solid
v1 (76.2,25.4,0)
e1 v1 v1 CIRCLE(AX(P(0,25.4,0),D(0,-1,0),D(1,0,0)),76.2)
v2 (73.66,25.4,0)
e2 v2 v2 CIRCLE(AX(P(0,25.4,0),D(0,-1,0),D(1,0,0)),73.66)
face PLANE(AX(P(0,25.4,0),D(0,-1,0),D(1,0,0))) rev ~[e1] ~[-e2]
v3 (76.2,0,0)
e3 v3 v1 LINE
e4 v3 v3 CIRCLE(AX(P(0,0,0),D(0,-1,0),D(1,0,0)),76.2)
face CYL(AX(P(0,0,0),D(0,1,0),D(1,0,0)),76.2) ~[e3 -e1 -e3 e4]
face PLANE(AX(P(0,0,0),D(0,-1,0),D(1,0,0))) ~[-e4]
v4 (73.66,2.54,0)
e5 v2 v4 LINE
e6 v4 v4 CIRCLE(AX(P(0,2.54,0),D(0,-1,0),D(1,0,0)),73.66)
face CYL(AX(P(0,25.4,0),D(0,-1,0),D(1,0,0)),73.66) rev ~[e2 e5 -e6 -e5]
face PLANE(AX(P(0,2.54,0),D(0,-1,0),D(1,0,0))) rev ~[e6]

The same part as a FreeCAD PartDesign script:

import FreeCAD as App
import Part
import Sketcher

V = App.Vector
Q = App.Units.Quantity


def add_polygon(sketch, points):
    """Adds a closed chain of lines whose ends are joined by coincident constraints."""
    first, n = sketch.GeometryCount, len(points)
    for a, b in zip(points, points[1:] + points[:1]):
        sketch.addGeometry(Part.LineSegment(App.Vector(*a, 0), App.Vector(*b, 0)), False)
    for i in range(n):
        sketch.addConstraint(Sketcher.Constraint("Coincident", first + i, 2, first + (i + 1) % n, 1))

doc = App.newDocument("Part")
body = doc.addObject("PartDesign::Body", "Body")

# Sketch on XY plane
sketch1 = body.newObject("Sketcher::SketchObject", "Sketch")
sketch1.AttachmentSupport = (doc.getObject("XY_Plane"), [""])
sketch1.MapMode = "FlatFace"
add_polygon(sketch1, [(0, 2.5), (0, 0), (76.2, 0), (76.2, 25.4), (73.7, 25.4), (73.7, 2.5)])  # lines 0-5
sketch1.addConstraint(Sketcher.Constraint("Vertical", 0))
sketch1.addConstraint(Sketcher.Constraint("Horizontal", 1))
sketch1.addConstraint(Sketcher.Constraint("Vertical", 2))
sketch1.addConstraint(Sketcher.Constraint("Horizontal", 3))
sketch1.addConstraint(Sketcher.Constraint("Vertical", 4))
sketch1.addConstraint(Sketcher.Constraint("Horizontal", 5))
sketch1.addConstraint(Sketcher.Constraint("Coincident", 0, 2, -1, 1))
sketch1.addConstraint(Sketcher.Constraint("Equal", 3, 0))
sketch1.addConstraint(Sketcher.Constraint("DistanceX", 1, 1, 1, 2, Q("3 in")))
sketch1.addConstraint(Sketcher.Constraint("DistanceY", 2, 1, 2, 2, Q("1 in")))
sketch1.addConstraint(Sketcher.Constraint("DistanceX", 3, 2, 3, 1, Q("0.1 in")))
revolution = body.newObject("PartDesign::Revolution", "Revolution")
revolution.Profile = sketch1
revolution.ReferenceAxis = (sketch1, ["V_Axis"])
revolution.Angle = 360

doc.recompute()
